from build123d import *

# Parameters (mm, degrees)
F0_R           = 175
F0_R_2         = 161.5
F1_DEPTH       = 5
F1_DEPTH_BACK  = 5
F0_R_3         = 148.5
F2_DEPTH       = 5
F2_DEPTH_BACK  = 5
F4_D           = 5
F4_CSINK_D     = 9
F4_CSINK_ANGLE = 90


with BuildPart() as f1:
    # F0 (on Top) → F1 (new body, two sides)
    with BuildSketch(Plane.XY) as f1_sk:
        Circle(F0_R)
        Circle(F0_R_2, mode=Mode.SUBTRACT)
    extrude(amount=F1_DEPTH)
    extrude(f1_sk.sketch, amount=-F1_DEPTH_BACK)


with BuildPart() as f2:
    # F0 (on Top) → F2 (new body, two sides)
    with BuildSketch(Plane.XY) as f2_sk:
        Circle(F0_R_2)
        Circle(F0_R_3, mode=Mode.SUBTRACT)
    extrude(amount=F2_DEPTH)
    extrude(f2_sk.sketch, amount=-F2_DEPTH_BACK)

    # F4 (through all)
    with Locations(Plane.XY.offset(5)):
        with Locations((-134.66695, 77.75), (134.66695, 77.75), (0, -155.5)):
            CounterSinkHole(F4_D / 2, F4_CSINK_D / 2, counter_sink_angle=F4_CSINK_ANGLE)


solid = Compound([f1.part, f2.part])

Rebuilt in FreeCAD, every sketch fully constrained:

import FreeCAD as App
import Part
import Sketcher

V = App.Vector

doc = App.newDocument("Part")
body = doc.addObject("PartDesign::Body", "Body")

# Sketch on XY plane
sketch1 = body.newObject("Sketcher::SketchObject", "Sketch")
sketch1.AttachmentSupport = (doc.getObject("XY_Plane"), [""])
sketch1.MapMode = "FlatFace"
sketch1.addGeometry([
    Part.Circle(V(0, 0, 0), V(0, 0, 1), 175),
    Part.Circle(V(0, 0, 0), V(0, 0, 1), 162),
], False)
sketch1.addConstraint([
    Sketcher.Constraint("Coincident", 0, 3, -1, 1),
    Sketcher.Constraint("Coincident", 1, 3, -1, 1),
    Sketcher.Constraint("Diameter", 0, 350.0),
    Sketcher.Constraint("Diameter", 1, 323.0),
])
pad1 = body.newObject("PartDesign::Pad", "Pad")
pad1.Profile = sketch1
pad1.Type = "TwoLengths"
pad1.Length = 5
pad1.Length2 = 5
body2 = doc.addObject("PartDesign::Body", "Body001")

# Sketch on XY plane
sketch2 = body2.newObject("Sketcher::SketchObject", "Sketch001")
sketch2.AttachmentSupport = (doc.getObject("XY_Plane001"), [""])
sketch2.MapMode = "FlatFace"
sketch2.addGeometry([
    Part.Circle(V(0, 0, 0), V(0, 0, 1), 162),
    Part.Circle(V(0, 0, 0), V(0, 0, 1), 148),
], False)
sketch2.addConstraint([
    Sketcher.Constraint("Coincident", 0, 3, -1, 1),
    Sketcher.Constraint("Coincident", 1, 3, -1, 1),
    Sketcher.Constraint("Diameter", 0, 323.0),
    Sketcher.Constraint("Diameter", 1, 297.0),
])
pad2 = body2.newObject("PartDesign::Pad", "Pad001")
pad2.Profile = sketch2
pad2.Type = "TwoLengths"
pad2.Length = 5
pad2.Length2 = 5

# Sketch on XY plane
sketch3 = body2.newObject("Sketcher::SketchObject", "Sketch002")
sketch3.AttachmentSupport = (doc.getObject("XY_Plane001"), [""])
sketch3.MapMode = "FlatFace"
sketch3.AttachmentOffset = App.Placement(V(0, 0, 5), App.Rotation())
sketch3.addGeometry([
    Part.Circle(V(-134.7, 77.8, 0), V(0, 0, 1), 2.5),
    Part.Circle(V(134.7, 77.8, 0), V(0, 0, 1), 2.5),
    Part.Circle(V(0, -155.5, 0), V(0, 0, 1), 2.5),
], False)
sketch3.addConstraint([
    Sketcher.Constraint("Equal", 0, 1),
    Sketcher.Constraint("Equal", 1, 2),
    Sketcher.Constraint("Symmetric", 0, 3, 1, 3, -2),
    Sketcher.Constraint("PointOnObject", 2, 3, -2),
    Sketcher.Constraint("Diameter", 0, 5.0),
    Sketcher.Constraint("DistanceY", 2, 3, -1, 1, 155.5),
    Sketcher.Constraint("DistanceY", -1, 1, 0, 3, 77.75),
    Sketcher.Constraint("DistanceX", 0, 3, 1, 3, 269.3339),
])
doc.recompute()
hole = body2.newObject("PartDesign::Hole", "Hole")
hole.Profile = sketch3
hole.ThreadType = "None"
hole.Diameter = 5
hole.DepthType = "ThroughAll"
hole.HoleCutType = "Countersink"
hole.HoleCutDiameter = 9
hole.HoleCutCountersinkAngle = 90

doc.recompute()
